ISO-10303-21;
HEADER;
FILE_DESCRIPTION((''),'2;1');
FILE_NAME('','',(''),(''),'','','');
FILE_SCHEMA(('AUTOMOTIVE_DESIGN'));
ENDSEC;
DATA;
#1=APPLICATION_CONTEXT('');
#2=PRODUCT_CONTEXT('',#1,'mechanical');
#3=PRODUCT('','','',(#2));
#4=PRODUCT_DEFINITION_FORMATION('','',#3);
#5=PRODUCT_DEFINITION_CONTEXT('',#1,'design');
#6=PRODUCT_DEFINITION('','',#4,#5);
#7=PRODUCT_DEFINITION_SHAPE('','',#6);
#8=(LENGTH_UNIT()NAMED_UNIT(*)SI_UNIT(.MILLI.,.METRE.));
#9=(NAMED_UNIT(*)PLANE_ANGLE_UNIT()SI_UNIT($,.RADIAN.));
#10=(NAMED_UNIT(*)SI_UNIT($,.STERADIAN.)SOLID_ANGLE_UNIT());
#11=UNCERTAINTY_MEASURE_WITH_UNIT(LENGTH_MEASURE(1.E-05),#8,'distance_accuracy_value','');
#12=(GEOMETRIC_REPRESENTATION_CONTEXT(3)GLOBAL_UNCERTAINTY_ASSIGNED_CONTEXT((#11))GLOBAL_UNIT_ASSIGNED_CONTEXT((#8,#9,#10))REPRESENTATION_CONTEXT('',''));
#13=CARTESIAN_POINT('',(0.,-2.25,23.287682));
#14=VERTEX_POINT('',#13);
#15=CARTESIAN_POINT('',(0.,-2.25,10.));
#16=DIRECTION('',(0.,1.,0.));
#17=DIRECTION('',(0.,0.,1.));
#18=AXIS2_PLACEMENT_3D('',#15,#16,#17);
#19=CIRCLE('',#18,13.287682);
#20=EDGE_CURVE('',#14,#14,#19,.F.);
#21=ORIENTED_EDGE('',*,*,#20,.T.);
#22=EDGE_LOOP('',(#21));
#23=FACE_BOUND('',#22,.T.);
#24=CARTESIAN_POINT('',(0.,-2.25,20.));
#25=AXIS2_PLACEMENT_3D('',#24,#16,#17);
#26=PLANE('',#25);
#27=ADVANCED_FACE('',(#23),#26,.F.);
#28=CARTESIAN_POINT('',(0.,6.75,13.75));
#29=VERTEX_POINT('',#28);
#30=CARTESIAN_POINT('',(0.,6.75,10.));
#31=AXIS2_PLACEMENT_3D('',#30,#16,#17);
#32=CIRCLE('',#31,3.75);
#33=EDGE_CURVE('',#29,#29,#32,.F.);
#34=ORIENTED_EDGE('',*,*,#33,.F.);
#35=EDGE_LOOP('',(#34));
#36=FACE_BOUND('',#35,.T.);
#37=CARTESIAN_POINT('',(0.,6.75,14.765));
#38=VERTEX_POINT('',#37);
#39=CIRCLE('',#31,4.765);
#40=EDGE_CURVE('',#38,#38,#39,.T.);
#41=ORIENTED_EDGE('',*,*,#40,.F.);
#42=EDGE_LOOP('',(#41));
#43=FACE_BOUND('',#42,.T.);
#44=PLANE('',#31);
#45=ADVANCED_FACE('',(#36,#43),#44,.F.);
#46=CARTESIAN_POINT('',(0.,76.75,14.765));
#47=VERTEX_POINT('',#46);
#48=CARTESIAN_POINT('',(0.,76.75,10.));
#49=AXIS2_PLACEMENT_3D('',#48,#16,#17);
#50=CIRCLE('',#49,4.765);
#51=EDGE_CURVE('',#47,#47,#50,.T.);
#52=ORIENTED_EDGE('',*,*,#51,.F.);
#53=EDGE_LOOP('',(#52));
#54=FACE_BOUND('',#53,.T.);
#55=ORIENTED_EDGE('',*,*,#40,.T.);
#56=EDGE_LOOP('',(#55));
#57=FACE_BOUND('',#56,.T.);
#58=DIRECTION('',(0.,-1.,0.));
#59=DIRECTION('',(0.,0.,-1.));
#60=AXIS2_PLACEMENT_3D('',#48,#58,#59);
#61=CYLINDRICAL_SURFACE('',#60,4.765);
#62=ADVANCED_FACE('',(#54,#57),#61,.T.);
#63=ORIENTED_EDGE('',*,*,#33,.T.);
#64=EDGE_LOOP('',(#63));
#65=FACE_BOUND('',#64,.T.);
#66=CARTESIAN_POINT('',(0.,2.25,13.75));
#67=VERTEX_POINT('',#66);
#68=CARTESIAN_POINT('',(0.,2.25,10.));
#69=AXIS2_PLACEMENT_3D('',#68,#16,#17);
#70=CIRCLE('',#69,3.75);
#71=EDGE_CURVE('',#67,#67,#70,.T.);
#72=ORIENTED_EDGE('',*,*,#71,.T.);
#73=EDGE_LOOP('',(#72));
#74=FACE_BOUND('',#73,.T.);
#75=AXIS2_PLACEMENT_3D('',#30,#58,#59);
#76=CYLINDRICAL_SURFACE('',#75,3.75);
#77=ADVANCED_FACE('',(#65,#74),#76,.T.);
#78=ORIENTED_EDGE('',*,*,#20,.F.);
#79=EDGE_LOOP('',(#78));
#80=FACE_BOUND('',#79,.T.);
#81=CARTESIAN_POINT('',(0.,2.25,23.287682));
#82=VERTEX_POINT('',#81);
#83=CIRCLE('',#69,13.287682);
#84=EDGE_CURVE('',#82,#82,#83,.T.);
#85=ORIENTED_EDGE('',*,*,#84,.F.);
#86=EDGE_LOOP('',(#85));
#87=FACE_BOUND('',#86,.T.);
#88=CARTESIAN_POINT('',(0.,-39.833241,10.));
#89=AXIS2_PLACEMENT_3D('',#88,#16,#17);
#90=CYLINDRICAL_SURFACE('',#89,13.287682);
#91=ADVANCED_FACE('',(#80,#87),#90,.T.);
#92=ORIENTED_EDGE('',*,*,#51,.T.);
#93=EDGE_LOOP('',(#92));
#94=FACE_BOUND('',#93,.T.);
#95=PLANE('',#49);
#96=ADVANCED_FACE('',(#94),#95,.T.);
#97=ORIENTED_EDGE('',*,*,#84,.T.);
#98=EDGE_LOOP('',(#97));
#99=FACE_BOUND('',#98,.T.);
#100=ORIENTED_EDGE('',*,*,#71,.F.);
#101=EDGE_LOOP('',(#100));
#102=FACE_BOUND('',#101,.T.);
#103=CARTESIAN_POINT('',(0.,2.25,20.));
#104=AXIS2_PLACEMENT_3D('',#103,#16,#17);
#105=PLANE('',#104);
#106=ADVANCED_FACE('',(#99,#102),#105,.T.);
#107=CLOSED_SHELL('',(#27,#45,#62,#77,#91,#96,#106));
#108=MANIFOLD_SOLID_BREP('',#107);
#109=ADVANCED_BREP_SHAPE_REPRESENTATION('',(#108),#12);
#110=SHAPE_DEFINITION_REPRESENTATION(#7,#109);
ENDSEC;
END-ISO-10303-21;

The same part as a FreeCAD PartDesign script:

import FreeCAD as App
import Part
import Sketcher
from FreeCAD import Vector

doc = App.newDocument("Part")
body = doc.addObject("PartDesign::Body", "Body")

# Sketch on XY plane
sketch1 = body.newObject("Sketcher::SketchObject", "Sketch")
sketch1.AttachmentSupport = (doc.getObject("XY_Plane"), [""])
sketch1.MapMode = "FlatFace"
sketch1.addGeometry(Part.LineSegment(Vector(8.75, 2.25, 0), Vector(-8.75, 2.25, 0)), False)
sketch1.addGeometry(Part.LineSegment(Vector(-8.75, 2.25, 0), Vector(-4.25, -2.25, 0)), False)
sketch1.addGeometry(Part.LineSegment(Vector(-4.25, -2.25, 0), Vector(4.25, -2.25, 0)), False)
sketch1.addGeometry(Part.LineSegment(Vector(4.25, -2.25, 0), Vector(8.75, 2.25, 0)), False)
sketch1.addConstraint(Sketcher.Constraint("Coincident", 0, 2, 1, 1))
sketch1.addConstraint(Sketcher.Constraint("Coincident", 1, 2, 2, 1))
sketch1.addConstraint(Sketcher.Constraint("Coincident", 2, 2, 3, 1))
sketch1.addConstraint(Sketcher.Constraint("Coincident", 3, 2, 0, 1))
sketch1.addConstraint(Sketcher.Constraint("Horizontal", 0))
sketch1.addConstraint(Sketcher.Constraint("Horizontal", 2))
sketch1.addConstraint(Sketcher.Constraint("Perpendicular", 1, 3))
sketch1.addConstraint(Sketcher.Constraint("Equal", 1, 3))
sketch1.addConstraint(Sketcher.Constraint("DistanceX", 0, 2, 0, 1, 17.5))
sketch1.addConstraint(Sketcher.Constraint("DistanceX", 2, 1, 2, 2, 8.5))
sketch1.addConstraint(Sketcher.Constraint("DistanceX", 0, 2, -1, 1, 8.75))
sketch1.addConstraint(Sketcher.Constraint("DistanceY", -1, 1, 0, 2, 2.25))
pad1 = body.newObject("PartDesign::Pad", "Pad")
pad1.Profile = sketch1
pad1.Length = 20

# Sketch on XZ plane
sketch2 = body.newObject("Sketcher::SketchObject", "Sketch001")
sketch2.AttachmentSupport = (doc.getObject("XZ_Plane"), [""])
sketch2.MapMode = "FlatFace"
sketch2.AttachmentOffset = App.Placement(Vector(0, 0, -2.25), App.Rotation())
sketch2.addGeometry(Part.Circle(Vector(0, 10, 0), Vector(0, 0, 1), 3.75), False)
sketch2.addConstraint(Sketcher.Constraint("PointOnObject", 0, 3, -2))
sketch2.addConstraint(Sketcher.Constraint("Diameter", 0, 7.5))
sketch2.addConstraint(Sketcher.Constraint("DistanceY", -1, 1, 0, 3, 10.0))
pocket1 = body.newObject("PartDesign::Pocket", "Pocket")
pocket1.Profile = sketch2
pocket1.Type = "UpToFirst"
pocket1.Reversed = True

# Sketch on XZ plane
sketch3 = body.newObject("Sketcher::SketchObject", "Sketch002")
sketch3.AttachmentSupport = (doc.getObject("XZ_Plane"), [""])
sketch3.MapMode = "FlatFace"
sketch3.AttachmentOffset = App.Placement(Vector(0, 0, -6.75), App.Rotation())
sketch3.addGeometry(Part.Circle(Vector(0, 10, 0), Vector(0, 0, 1), 3.75), False)
sketch3.addConstraint(Sketcher.Constraint("PointOnObject", 0, 3, -2))
sketch3.addConstraint(Sketcher.Constraint("Diameter", 0, 7.5))
sketch3.addConstraint(Sketcher.Constraint("DistanceY", -1, 1, 0, 3, 10.0))
pad2 = body.newObject("PartDesign::Pad", "Pad001")
pad2.Profile = sketch3
pad2.Length = 9

# Sketch on XZ plane
sketch4 = body.newObject("Sketcher::SketchObject", "Sketch003")
sketch4.AttachmentSupport = (doc.getObject("XZ_Plane"), [""])
sketch4.MapMode = "FlatFace"
sketch4.AttachmentOffset = App.Placement(Vector(0, 0, -6.75), App.Rotation())
sketch4.addGeometry(Part.Circle(Vector(0, 10, 0), Vector(0, 0, 1), 4.765), False)
sketch4.addConstraint(Sketcher.Constraint("PointOnObject", 0, 3, -2))
sketch4.addConstraint(Sketcher.Constraint("Diameter", 0, 9.53))
sketch4.addConstraint(Sketcher.Constraint("DistanceY", -1, 1, 0, 3, 10.0))
pad3 = body.newObject("PartDesign::Pad", "Pad002")
pad3.Profile = sketch4
pad3.Length = 70
pad3.Reversed = True

# Sketch on XZ plane
sketch5 = body.newObject("Sketcher::SketchObject", "Sketch004")
sketch5.AttachmentSupport = (doc.getObject("XZ_Plane"), [""])
sketch5.MapMode = "FlatFace"
sketch5.AttachmentOffset = App.Placement(Vector(0, 0, -2.25), App.Rotation())
sketch5.addGeometry(Part.Circle(Vector(0, 10, 0), Vector(0, 0, 1), 13.287682), False)
sketch5.addConstraint(Sketcher.Constraint("PointOnObject", 0, 3, -2))
sketch5.addConstraint(Sketcher.Constraint("DistanceY", -1, 1, 0, 3, 10.0))
sketch5.addConstraint(Sketcher.Constraint("Diameter", 0, 26.575365))
pad4 = body.newObject("PartDesign::Pad", "Pad003")
pad4.Profile = sketch5
pad4.Length = 4.5

doc.recompute()
